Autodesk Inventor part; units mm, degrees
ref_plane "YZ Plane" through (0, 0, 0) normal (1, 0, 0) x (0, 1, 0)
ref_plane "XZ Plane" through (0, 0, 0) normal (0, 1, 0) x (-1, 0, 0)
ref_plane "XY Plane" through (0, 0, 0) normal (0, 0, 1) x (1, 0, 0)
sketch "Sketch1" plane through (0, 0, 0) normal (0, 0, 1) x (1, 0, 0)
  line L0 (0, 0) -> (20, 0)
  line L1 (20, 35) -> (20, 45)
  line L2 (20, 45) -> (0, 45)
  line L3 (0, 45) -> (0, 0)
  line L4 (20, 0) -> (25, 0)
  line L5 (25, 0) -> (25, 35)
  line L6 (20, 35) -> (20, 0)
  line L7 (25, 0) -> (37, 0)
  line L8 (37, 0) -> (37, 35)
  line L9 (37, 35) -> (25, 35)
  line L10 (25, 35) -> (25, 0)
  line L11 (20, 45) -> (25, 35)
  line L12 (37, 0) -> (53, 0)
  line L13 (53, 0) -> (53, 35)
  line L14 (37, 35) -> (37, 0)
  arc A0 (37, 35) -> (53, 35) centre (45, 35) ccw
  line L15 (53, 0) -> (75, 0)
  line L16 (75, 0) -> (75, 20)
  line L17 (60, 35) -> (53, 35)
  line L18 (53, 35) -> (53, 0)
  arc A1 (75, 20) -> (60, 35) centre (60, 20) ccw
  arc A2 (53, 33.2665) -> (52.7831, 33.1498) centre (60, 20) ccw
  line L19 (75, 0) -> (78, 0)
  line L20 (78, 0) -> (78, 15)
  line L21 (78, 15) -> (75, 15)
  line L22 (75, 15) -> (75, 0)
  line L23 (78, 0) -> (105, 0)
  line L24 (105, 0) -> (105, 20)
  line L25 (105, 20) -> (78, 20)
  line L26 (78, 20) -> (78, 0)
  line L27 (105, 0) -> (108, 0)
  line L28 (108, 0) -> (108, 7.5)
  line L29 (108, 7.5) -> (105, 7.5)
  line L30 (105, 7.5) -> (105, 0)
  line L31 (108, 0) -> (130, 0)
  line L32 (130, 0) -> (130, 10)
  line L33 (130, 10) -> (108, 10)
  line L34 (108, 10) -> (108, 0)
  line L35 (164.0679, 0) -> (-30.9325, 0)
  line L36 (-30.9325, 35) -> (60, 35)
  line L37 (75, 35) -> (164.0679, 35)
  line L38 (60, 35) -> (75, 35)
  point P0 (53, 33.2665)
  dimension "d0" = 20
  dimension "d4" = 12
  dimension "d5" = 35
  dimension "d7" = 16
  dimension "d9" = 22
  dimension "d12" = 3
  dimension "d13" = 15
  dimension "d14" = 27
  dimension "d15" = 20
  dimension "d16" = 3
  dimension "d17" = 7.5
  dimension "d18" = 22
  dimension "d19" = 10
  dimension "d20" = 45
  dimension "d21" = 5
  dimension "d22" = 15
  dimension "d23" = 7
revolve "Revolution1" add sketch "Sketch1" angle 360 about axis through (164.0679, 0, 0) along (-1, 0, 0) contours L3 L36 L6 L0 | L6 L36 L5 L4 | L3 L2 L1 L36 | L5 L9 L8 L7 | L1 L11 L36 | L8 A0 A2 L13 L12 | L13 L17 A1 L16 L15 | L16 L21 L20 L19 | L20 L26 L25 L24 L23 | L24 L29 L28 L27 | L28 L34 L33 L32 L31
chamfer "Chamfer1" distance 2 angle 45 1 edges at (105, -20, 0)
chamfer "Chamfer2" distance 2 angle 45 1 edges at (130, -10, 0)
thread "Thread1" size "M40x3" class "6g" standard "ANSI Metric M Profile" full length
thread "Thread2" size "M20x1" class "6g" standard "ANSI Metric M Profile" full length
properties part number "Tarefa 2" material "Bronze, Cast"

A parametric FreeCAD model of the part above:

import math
import FreeCAD as App
import Part
import Sketcher
from FreeCAD import Vector
Q = App.Units.Quantity


def edges_at(feature, points):
    """Names of the edges that pass closest to the given points."""
    edges = feature.Shape.Edges
    near = lambda p: min(range(len(edges)), key=lambda i: edges[i].distToShape(Part.Vertex(*p))[0])
    return sorted({f"Edge{near(p) + 1}" for p in points})

doc = App.newDocument("Part")
body = doc.addObject("PartDesign::Body", "Body")

sketch1 = body.newObject("Sketcher::SketchObject", "Sketch")
sketch1.AttachmentSupport = (doc.getObject("XY_Plane"), [""])
sketch1.MapMode = "FlatFace"
sketch1.addGeometry(Part.LineSegment(Vector(0, 0, 0), Vector(130, 0, 0)), False)
sketch1.addGeometry(Part.LineSegment(Vector(130, 0, 0), Vector(130, 10, 0)), False)
sketch1.addGeometry(Part.LineSegment(Vector(130, 10, 0), Vector(108, 10, 0)), False)
sketch1.addGeometry(Part.LineSegment(Vector(108, 10, 0), Vector(108, 7.5, 0)), False)
sketch1.addGeometry(Part.LineSegment(Vector(108, 7.5, 0), Vector(105, 7.5, 0)), False)
sketch1.addGeometry(Part.LineSegment(Vector(105, 7.5, 0), Vector(105, 20, 0)), False)
sketch1.addGeometry(Part.LineSegment(Vector(105, 20, 0), Vector(78, 20, 0)), False)
sketch1.addGeometry(Part.LineSegment(Vector(78, 20, 0), Vector(78, 15, 0)), False)
sketch1.addGeometry(Part.LineSegment(Vector(78, 15, 0), Vector(75, 15, 0)), False)
sketch1.addGeometry(Part.LineSegment(Vector(75, 15, 0), Vector(75, 20, 0)), False)
sketch1.addGeometry(Part.ArcOfCircle(Part.Circle(Vector(60, 20, 0), Vector(0, 0, 1), 15), math.radians(0), math.radians(90)), False)
sketch1.addGeometry(Part.LineSegment(Vector(60, 35, 0), Vector(53, 35, 0)), False)
sketch1.addGeometry(Part.LineSegment(Vector(53, 35, 0), Vector(53, 33.27, 0)), False)
sketch1.addGeometry(Part.ArcOfCircle(Part.Circle(Vector(60.21, 19.61, 0), Vector(0, 0, 1), 15.44), math.radians(117.82), math.radians(118.74)), False)
sketch1.addGeometry(Part.ArcOfCircle(Part.Circle(Vector(45, 35, 0), Vector(0, 0, 1), 8), math.radians(180), math.radians(347)), False)
sketch1.addGeometry(Part.LineSegment(Vector(37, 35, 0), Vector(25, 35, 0)), False)
sketch1.addGeometry(Part.LineSegment(Vector(25, 35, 0), Vector(20, 45, 0)), False)
sketch1.addGeometry(Part.LineSegment(Vector(20, 45, 0), Vector(0, 45, 0)), False)
sketch1.addGeometry(Part.LineSegment(Vector(0, 45, 0), Vector(0, 0, 0)), False)
sketch1.addConstraint(Sketcher.Constraint("Coincident", 0, 2, 1, 1))
sketch1.addConstraint(Sketcher.Constraint("Coincident", 1, 2, 2, 1))
sketch1.addConstraint(Sketcher.Constraint("Coincident", 2, 2, 3, 1))
sketch1.addConstraint(Sketcher.Constraint("Coincident", 3, 2, 4, 1))
sketch1.addConstraint(Sketcher.Constraint("Coincident", 4, 2, 5, 1))
sketch1.addConstraint(Sketcher.Constraint("Coincident", 5, 2, 6, 1))
sketch1.addConstraint(Sketcher.Constraint("Coincident", 6, 2, 7, 1))
sketch1.addConstraint(Sketcher.Constraint("Coincident", 7, 2, 8, 1))
sketch1.addConstraint(Sketcher.Constraint("Coincident", 8, 2, 9, 1))
sketch1.addConstraint(Sketcher.Constraint("Tangent", 9, 2, 10, 1))
sketch1.addConstraint(Sketcher.Constraint("Tangent", 10, 2, 11, 1))
sketch1.addConstraint(Sketcher.Constraint("Coincident", 11, 2, 12, 1))
sketch1.addConstraint(Sketcher.Constraint("Coincident", 12, 2, 13, 1))
sketch1.addConstraint(Sketcher.Constraint("Coincident", 13, 2, 14, 2))
sketch1.addConstraint(Sketcher.Constraint("Coincident", 14, 1, 15, 1))
sketch1.addConstraint(Sketcher.Constraint("Coincident", 15, 2, 16, 1))
sketch1.addConstraint(Sketcher.Constraint("Coincident", 16, 2, 17, 1))
sketch1.addConstraint(Sketcher.Constraint("Coincident", 17, 2, 18, 1))
sketch1.addConstraint(Sketcher.Constraint("Coincident", 18, 2, 0, 1))
sketch1.addConstraint(Sketcher.Constraint("Horizontal", 0))
sketch1.addConstraint(Sketcher.Constraint("Vertical", 1))
sketch1.addConstraint(Sketcher.Constraint("Horizontal", 2))
sketch1.addConstraint(Sketcher.Constraint("Vertical", 3))
sketch1.addConstraint(Sketcher.Constraint("Horizontal", 4))
sketch1.addConstraint(Sketcher.Constraint("Vertical", 5))
sketch1.addConstraint(Sketcher.Constraint("Horizontal", 6))
sketch1.addConstraint(Sketcher.Constraint("Vertical", 7))
sketch1.addConstraint(Sketcher.Constraint("Horizontal", 8))
sketch1.addConstraint(Sketcher.Constraint("Vertical", 9))
sketch1.addConstraint(Sketcher.Constraint("Horizontal", 11))
sketch1.addConstraint(Sketcher.Constraint("Vertical", 12))
sketch1.addConstraint(Sketcher.Constraint("Horizontal", 15))
sketch1.addConstraint(Sketcher.Constraint("Horizontal", 17))
sketch1.addConstraint(Sketcher.Constraint("Vertical", 18))
sketch1.addConstraint(Sketcher.Constraint("Coincident", 18, 2, -1, 1))
sketch1.addConstraint(Sketcher.Constraint("Horizontal", 10, 3, 5, 2))
sketch1.addConstraint(Sketcher.Constraint("Horizontal", 14, 3, 10, 2))
sketch1.addConstraint(Sketcher.Constraint("Horizontal", 11, 2, 14, 1))
sketch1.addConstraint(Sketcher.Constraint("Equal", 4, 8))
sketch1.addConstraint(Sketcher.Constraint("Radius", 10, Q("15 mm")))
sketch1.addConstraint(Sketcher.Constraint("Radius", 14, Q("8 mm")))
sketch1.addConstraint(Sketcher.Constraint("DistanceX", 2, 2, 2, 1, Q("22 mm")))
sketch1.addConstraint(Sketcher.Constraint("DistanceX", 4, 2, 4, 1, Q("3 mm")))
sketch1.addConstraint(Sketcher.Constraint("DistanceX", 6, 2, 6, 1, Q("27 mm")))
sketch1.addConstraint(Sketcher.Constraint("DistanceX", 11, 2, 11, 1, Q("7 mm")))
sketch1.addConstraint(Sketcher.Constraint("DistanceX", 15, 2, 15, 1, Q("12 mm")))
sketch1.addConstraint(Sketcher.Constraint("DistanceX", 17, 2, 17, 1, Q("20 mm")))
sketch1.addConstraint(Sketcher.Constraint("DistanceY", 1, 1, 1, 2, Q("10 mm")))
sketch1.addConstraint(Sketcher.Constraint("DistanceY", 7, 2, 7, 1, Q("5 mm")))
sketch1.addConstraint(Sketcher.Constraint("DistanceY", 18, 2, 18, 1, Q("45 mm")))
sketch1.addConstraint(Sketcher.Constraint("DistanceY", -1, 1, 10, 3, Q("20 mm")))
sketch1.addConstraint(Sketcher.Constraint("DistanceX", -1, 1, 14, 3, Q("45 mm")))
sketch1.addConstraint(Sketcher.Constraint("DistanceX", 14, 3, 10, 3, Q("15 mm")))
sketch1.addConstraint(Sketcher.Constraint("DistanceY", -1, 1, 3, 2, Q("7.5 mm")))
sketch1.addConstraint(Sketcher.Constraint("Radius", 13, Q("15.4395 mm")))
sketch1.addConstraint(Sketcher.Constraint("DistanceY", 12, 2, 12, 1, Q("1.7335 mm")))
sketch1.addConstraint(Sketcher.Constraint("DistanceX", -1, 1, 13, 3, Q("60.2067 mm")))
revolution = body.newObject("PartDesign::Revolution", "Revolution")
revolution.Profile = sketch1
revolution.ReferenceAxis = (sketch1, ["H_Axis"])
revolution.Angle = 360
doc.recompute()

chamfer = body.newObject("PartDesign::Chamfer", "Chamfer")
chamfer.Base = (revolution, edges_at(revolution, [(105, -20, 0)]))
chamfer.Size = 2
doc.recompute()

chamfer2 = body.newObject("PartDesign::Chamfer", "Chamfer001")
chamfer2.Base = (chamfer, edges_at(chamfer, [(130, -10, 0)]))
chamfer2.Size = 2

doc.recompute()
